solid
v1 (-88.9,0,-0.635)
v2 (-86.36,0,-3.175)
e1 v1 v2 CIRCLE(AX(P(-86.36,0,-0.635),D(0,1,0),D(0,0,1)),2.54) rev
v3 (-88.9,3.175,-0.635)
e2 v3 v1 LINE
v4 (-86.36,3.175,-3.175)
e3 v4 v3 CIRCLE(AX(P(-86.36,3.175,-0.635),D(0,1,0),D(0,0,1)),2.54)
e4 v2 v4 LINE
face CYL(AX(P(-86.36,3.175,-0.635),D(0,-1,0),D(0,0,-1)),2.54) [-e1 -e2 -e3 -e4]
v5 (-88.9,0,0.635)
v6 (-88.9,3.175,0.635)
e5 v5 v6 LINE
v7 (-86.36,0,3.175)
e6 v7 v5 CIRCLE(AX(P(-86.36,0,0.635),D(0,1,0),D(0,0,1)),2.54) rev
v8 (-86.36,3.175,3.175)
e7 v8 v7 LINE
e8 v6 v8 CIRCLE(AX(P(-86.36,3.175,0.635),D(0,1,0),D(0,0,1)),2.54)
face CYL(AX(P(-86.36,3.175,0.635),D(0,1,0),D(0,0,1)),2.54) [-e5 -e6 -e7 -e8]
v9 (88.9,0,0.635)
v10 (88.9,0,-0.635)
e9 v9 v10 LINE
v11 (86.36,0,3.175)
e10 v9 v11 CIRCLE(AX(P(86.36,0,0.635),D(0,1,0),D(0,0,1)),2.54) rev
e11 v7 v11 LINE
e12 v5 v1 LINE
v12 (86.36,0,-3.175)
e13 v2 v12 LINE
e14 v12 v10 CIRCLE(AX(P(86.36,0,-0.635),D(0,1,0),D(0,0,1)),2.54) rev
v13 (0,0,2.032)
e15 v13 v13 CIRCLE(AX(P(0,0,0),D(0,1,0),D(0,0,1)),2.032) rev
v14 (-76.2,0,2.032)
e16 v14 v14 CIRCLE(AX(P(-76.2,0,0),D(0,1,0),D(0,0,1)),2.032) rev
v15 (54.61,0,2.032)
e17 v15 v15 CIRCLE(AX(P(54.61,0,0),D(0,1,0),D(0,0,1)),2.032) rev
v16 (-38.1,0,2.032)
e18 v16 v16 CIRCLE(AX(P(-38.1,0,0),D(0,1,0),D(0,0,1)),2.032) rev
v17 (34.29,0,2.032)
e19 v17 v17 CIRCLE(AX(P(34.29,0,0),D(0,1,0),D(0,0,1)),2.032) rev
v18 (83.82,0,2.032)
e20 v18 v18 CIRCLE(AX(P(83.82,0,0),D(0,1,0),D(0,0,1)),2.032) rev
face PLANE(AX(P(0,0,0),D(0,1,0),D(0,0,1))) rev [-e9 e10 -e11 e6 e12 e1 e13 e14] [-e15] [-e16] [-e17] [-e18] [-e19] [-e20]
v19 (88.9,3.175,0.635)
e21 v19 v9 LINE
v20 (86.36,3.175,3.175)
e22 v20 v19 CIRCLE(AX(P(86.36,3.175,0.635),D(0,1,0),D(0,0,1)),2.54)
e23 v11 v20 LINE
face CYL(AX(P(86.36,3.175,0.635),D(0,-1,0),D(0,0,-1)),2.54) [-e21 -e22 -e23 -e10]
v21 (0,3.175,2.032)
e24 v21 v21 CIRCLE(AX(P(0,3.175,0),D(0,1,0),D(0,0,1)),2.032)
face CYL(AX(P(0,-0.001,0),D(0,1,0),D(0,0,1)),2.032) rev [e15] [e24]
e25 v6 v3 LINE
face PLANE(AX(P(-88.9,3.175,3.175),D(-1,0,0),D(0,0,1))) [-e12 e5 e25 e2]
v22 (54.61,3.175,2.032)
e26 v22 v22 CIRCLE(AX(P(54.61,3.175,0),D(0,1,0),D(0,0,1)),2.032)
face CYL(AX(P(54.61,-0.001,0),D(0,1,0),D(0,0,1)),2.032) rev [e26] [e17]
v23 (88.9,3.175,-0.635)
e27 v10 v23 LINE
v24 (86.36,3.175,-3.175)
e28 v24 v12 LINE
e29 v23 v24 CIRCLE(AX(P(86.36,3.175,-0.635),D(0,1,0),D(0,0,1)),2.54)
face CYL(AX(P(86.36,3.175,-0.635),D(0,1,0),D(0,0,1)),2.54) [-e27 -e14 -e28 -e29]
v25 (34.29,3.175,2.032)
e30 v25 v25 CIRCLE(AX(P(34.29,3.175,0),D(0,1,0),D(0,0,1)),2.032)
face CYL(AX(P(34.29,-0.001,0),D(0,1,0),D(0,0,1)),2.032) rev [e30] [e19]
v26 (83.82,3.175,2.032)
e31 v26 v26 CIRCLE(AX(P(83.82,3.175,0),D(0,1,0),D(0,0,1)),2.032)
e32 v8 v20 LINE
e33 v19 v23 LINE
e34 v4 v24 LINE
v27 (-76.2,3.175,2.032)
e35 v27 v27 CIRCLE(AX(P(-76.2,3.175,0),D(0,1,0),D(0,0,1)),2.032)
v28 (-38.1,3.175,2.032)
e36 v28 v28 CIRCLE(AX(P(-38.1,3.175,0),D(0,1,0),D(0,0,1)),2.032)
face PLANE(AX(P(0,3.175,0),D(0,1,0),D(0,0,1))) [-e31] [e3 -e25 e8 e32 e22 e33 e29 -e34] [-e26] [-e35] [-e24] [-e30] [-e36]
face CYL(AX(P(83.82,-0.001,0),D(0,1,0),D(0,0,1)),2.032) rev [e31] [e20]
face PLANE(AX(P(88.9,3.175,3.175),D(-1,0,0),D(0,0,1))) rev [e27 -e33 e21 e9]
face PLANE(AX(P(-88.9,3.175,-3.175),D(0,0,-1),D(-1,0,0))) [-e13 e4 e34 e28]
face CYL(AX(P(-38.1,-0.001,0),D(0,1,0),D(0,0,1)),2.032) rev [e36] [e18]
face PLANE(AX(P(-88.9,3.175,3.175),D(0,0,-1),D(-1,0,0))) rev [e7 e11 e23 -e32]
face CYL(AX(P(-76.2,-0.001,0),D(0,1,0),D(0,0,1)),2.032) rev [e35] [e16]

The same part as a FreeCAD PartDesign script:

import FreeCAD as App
import Part
import Sketcher

V = App.Vector
Q = App.Units.Quantity


def edges_at(feature, points):
    """Names of the edges that pass closest to the given points."""
    edges = feature.Shape.Edges
    near = lambda p: min(range(len(edges)), key=lambda i: edges[i].distToShape(Part.Vertex(*p))[0])
    return sorted({f"Edge{near(p) + 1}" for p in points})


def add_polygon(sketch, points):
    """Adds a closed chain of lines whose ends are joined by coincident constraints."""
    first, n = sketch.GeometryCount, len(points)
    for a, b in zip(points, points[1:] + points[:1]):
        sketch.addGeometry(Part.LineSegment(App.Vector(*a, 0), App.Vector(*b, 0)), False)
    for i in range(n):
        sketch.addConstraint(Sketcher.Constraint("Coincident", first + i, 2, first + (i + 1) % n, 1))

doc = App.newDocument("Part")
body = doc.addObject("PartDesign::Body", "Body")

sketch1 = body.newObject("Sketcher::SketchObject", "Sketch")
sketch1.AttachmentSupport = (doc.getObject("XZ_Plane"), [""])
sketch1.MapMode = "FlatFace"
add_polygon(sketch1, [(-89, -3), (-89, 3), (89, 3), (89, -3)])
sketch1.addConstraint([
    Sketcher.Constraint("Vertical", 0),
    Sketcher.Constraint("Horizontal", 1),
    Sketcher.Constraint("Vertical", 2),
    Sketcher.Constraint("Horizontal", 3),
    Sketcher.Constraint("Symmetric", 0, 2, 2, 2, -1, 1),
    Sketcher.Constraint("DistanceX", 1, 1, 1, 2, Q("7 in")),
    Sketcher.Constraint("DistanceY", 0, 1, 0, 2, Q("0.25 in")),
])
pad1 = body.newObject("PartDesign::Pad", "Pad")
pad1.Profile = sketch1
pad1.Length = Q("0.125 in")
pad1.Reversed = True
doc.recompute()

fillet = body.newObject("PartDesign::Fillet", "Fillet")
fillet.Base = (pad1, edges_at(pad1, [
    (-88.9, 1.587, 3.175),
    (-88.9, 1.587, -3.175),
    (88.9, 1.587, -3.175),
    (88.9, 1.587, 3.175),
]))
fillet.Radius = Q("0.1 in")

sketch2 = body.newObject("Sketcher::SketchObject", "Sketch001")
sketch2.AttachmentSupport = (doc.getObject("XZ_Plane"), [""])
sketch2.MapMode = "FlatFace"
sketch2.AttachmentOffset = App.Placement(V(0, 0, -0.125 * 25.4), App.Rotation())
sketch2.addGeometry(Part.Circle(V(-76.2, 0, 0), V(0, 0, 1), 2), False)
sketch2.addConstraint([
    Sketcher.Constraint("PointOnObject", 0, 3, -1),
    Sketcher.Constraint("Diameter", 0, Q("0.16 in")),
    Sketcher.Constraint("DistanceX", 0, 3, -1, 1, Q("3 in")),
])
pocket1 = body.newObject("PartDesign::Pocket", "Pocket")
pocket1.Profile = sketch2
pocket1.Type = "UpToFirst"
pocket1.Reversed = True

sketch3 = body.newObject("Sketcher::SketchObject", "Sketch002")
sketch3.AttachmentSupport = (doc.getObject("XZ_Plane"), [""])
sketch3.MapMode = "FlatFace"
sketch3.AttachmentOffset = App.Placement(V(0, 0, -0.125 * 25.4), App.Rotation())
sketch3.addGeometry(Part.Circle(V(0, 0, 0), V(0, 0, 1), 2), False)
sketch3.addConstraint([
    Sketcher.Constraint("Coincident", 0, 3, -1, 1),
    Sketcher.Constraint("Diameter", 0, Q("0.16 in")),
])
pocket2 = body.newObject("PartDesign::Pocket", "Pocket001")
pocket2.Profile = sketch3
pocket2.Type = "UpToFirst"
pocket2.Reversed = True

sketch4 = body.newObject("Sketcher::SketchObject", "Sketch003")
sketch4.AttachmentSupport = (doc.getObject("XZ_Plane"), [""])
sketch4.MapMode = "FlatFace"
sketch4.AttachmentOffset = App.Placement(V(0, 0, -0.125 * 25.4), App.Rotation())
sketch4.addGeometry(Part.Circle(V(-38.1, 0, 0), V(0, 0, 1), 2), False)
sketch4.addConstraint([
    Sketcher.Constraint("PointOnObject", 0, 3, -1),
    Sketcher.Constraint("Diameter", 0, Q("0.16 in")),
    Sketcher.Constraint("DistanceX", 0, 3, -1, 1, Q("1.5 in")),
])
pocket3 = body.newObject("PartDesign::Pocket", "Pocket002")
pocket3.Profile = sketch4
pocket3.Type = "UpToFirst"
pocket3.Reversed = True

sketch5 = body.newObject("Sketcher::SketchObject", "Sketch004")
sketch5.AttachmentSupport = (doc.getObject("XZ_Plane"), [""])
sketch5.MapMode = "FlatFace"
sketch5.AttachmentOffset = App.Placement(V(0, 0, -0.125 * 25.4), App.Rotation())
sketch5.addGeometry(Part.Circle(V(83.8, 0, 0), V(0, 0, 1), 2), False)
sketch5.addConstraint([
    Sketcher.Constraint("PointOnObject", 0, 3, -1),
    Sketcher.Constraint("Diameter", 0, Q("0.16 in")),
    Sketcher.Constraint("DistanceX", -1, 1, 0, 3, Q("3.3 in")),
])
pocket4 = body.newObject("PartDesign::Pocket", "Pocket003")
pocket4.Profile = sketch5
pocket4.Type = "UpToFirst"
pocket4.Reversed = True

sketch6 = body.newObject("Sketcher::SketchObject", "Sketch005")
sketch6.AttachmentSupport = (doc.getObject("XZ_Plane"), [""])
sketch6.MapMode = "FlatFace"
sketch6.AttachmentOffset = App.Placement(V(0, 0, -0.125 * 25.4), App.Rotation())
sketch6.addGeometry(Part.Circle(V(54.6, 0, 0), V(0, 0, 1), 2), False)
sketch6.addConstraint([
    Sketcher.Constraint("PointOnObject", 0, 3, -1),
    Sketcher.Constraint("Diameter", 0, Q("0.16 in")),
    Sketcher.Constraint("DistanceX", -1, 1, 0, 3, Q("2.15 in")),
])
pocket5 = body.newObject("PartDesign::Pocket", "Pocket004")
pocket5.Profile = sketch6
pocket5.Type = "UpToFirst"
pocket5.Reversed = True

sketch7 = body.newObject("Sketcher::SketchObject", "Sketch006")
sketch7.AttachmentSupport = (doc.getObject("XZ_Plane"), [""])
sketch7.MapMode = "FlatFace"
sketch7.AttachmentOffset = App.Placement(V(0, 0, -0.125 * 25.4), App.Rotation())
sketch7.addGeometry(Part.Circle(V(34.3, 0, 0), V(0, 0, 1), 2), False)
sketch7.addConstraint([
    Sketcher.Constraint("PointOnObject", 0, 3, -1),
    Sketcher.Constraint("Diameter", 0, Q("0.16 in")),
    Sketcher.Constraint("DistanceX", -1, 1, 0, 3, Q("1.35 in")),
])
pocket6 = body.newObject("PartDesign::Pocket", "Pocket005")
pocket6.Profile = sketch7
pocket6.Type = "UpToFirst"
pocket6.Reversed = True

doc.recompute()
